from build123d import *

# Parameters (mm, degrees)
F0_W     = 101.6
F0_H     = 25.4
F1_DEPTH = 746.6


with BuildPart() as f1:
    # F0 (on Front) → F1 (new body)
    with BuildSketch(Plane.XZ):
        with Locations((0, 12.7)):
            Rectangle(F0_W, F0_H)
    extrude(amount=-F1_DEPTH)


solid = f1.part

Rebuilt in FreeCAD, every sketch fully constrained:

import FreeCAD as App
import Part
import Sketcher
Q = App.Units.Quantity

doc = App.newDocument("Part")
body = doc.addObject("PartDesign::Body", "Body")

sketch1 = body.newObject("Sketcher::SketchObject", "Sketch")
sketch1.AttachmentSupport = (doc.getObject("XZ_Plane"), [""])
sketch1.MapMode = "FlatFace"
sketch1.addGeometry([
    Part.LineSegment(App.Vector(-50.8, 25.4, 0), App.Vector(-50.8, 0, 0)),
    Part.LineSegment(App.Vector(-50.8, 0, 0), App.Vector(50.8, 0, 0)),
    Part.LineSegment(App.Vector(50.8, 0, 0), App.Vector(50.8, 25.4, 0)),
    Part.LineSegment(App.Vector(50.8, 25.4, 0), App.Vector(-50.8, 25.4, 0)),
], False)
sketch1.addConstraint([
    Sketcher.Constraint("Coincident", 0, 2, 1, 1),
    Sketcher.Constraint("Coincident", 1, 2, 2, 1),
    Sketcher.Constraint("Coincident", 2, 2, 3, 1),
    Sketcher.Constraint("Coincident", 3, 2, 0, 1),
    Sketcher.Constraint("Vertical", 0),
    Sketcher.Constraint("Horizontal", 1),
    Sketcher.Constraint("Vertical", 2),
    Sketcher.Constraint("Horizontal", 3),
    Sketcher.Constraint("Symmetric", 0, 2, 1, 2, -1, 1),
    Sketcher.Constraint("DistanceX", 1, 1, 1, 2, Q("4 in")),
    Sketcher.Constraint("DistanceY", 0, 2, 0, 1, Q("1 in")),
])
pad1 = body.newObject("PartDesign::Pad", "Pad")
pad1.Profile = sketch1
pad1.Length = 746.6
pad1.Reversed = True

doc.recompute()
